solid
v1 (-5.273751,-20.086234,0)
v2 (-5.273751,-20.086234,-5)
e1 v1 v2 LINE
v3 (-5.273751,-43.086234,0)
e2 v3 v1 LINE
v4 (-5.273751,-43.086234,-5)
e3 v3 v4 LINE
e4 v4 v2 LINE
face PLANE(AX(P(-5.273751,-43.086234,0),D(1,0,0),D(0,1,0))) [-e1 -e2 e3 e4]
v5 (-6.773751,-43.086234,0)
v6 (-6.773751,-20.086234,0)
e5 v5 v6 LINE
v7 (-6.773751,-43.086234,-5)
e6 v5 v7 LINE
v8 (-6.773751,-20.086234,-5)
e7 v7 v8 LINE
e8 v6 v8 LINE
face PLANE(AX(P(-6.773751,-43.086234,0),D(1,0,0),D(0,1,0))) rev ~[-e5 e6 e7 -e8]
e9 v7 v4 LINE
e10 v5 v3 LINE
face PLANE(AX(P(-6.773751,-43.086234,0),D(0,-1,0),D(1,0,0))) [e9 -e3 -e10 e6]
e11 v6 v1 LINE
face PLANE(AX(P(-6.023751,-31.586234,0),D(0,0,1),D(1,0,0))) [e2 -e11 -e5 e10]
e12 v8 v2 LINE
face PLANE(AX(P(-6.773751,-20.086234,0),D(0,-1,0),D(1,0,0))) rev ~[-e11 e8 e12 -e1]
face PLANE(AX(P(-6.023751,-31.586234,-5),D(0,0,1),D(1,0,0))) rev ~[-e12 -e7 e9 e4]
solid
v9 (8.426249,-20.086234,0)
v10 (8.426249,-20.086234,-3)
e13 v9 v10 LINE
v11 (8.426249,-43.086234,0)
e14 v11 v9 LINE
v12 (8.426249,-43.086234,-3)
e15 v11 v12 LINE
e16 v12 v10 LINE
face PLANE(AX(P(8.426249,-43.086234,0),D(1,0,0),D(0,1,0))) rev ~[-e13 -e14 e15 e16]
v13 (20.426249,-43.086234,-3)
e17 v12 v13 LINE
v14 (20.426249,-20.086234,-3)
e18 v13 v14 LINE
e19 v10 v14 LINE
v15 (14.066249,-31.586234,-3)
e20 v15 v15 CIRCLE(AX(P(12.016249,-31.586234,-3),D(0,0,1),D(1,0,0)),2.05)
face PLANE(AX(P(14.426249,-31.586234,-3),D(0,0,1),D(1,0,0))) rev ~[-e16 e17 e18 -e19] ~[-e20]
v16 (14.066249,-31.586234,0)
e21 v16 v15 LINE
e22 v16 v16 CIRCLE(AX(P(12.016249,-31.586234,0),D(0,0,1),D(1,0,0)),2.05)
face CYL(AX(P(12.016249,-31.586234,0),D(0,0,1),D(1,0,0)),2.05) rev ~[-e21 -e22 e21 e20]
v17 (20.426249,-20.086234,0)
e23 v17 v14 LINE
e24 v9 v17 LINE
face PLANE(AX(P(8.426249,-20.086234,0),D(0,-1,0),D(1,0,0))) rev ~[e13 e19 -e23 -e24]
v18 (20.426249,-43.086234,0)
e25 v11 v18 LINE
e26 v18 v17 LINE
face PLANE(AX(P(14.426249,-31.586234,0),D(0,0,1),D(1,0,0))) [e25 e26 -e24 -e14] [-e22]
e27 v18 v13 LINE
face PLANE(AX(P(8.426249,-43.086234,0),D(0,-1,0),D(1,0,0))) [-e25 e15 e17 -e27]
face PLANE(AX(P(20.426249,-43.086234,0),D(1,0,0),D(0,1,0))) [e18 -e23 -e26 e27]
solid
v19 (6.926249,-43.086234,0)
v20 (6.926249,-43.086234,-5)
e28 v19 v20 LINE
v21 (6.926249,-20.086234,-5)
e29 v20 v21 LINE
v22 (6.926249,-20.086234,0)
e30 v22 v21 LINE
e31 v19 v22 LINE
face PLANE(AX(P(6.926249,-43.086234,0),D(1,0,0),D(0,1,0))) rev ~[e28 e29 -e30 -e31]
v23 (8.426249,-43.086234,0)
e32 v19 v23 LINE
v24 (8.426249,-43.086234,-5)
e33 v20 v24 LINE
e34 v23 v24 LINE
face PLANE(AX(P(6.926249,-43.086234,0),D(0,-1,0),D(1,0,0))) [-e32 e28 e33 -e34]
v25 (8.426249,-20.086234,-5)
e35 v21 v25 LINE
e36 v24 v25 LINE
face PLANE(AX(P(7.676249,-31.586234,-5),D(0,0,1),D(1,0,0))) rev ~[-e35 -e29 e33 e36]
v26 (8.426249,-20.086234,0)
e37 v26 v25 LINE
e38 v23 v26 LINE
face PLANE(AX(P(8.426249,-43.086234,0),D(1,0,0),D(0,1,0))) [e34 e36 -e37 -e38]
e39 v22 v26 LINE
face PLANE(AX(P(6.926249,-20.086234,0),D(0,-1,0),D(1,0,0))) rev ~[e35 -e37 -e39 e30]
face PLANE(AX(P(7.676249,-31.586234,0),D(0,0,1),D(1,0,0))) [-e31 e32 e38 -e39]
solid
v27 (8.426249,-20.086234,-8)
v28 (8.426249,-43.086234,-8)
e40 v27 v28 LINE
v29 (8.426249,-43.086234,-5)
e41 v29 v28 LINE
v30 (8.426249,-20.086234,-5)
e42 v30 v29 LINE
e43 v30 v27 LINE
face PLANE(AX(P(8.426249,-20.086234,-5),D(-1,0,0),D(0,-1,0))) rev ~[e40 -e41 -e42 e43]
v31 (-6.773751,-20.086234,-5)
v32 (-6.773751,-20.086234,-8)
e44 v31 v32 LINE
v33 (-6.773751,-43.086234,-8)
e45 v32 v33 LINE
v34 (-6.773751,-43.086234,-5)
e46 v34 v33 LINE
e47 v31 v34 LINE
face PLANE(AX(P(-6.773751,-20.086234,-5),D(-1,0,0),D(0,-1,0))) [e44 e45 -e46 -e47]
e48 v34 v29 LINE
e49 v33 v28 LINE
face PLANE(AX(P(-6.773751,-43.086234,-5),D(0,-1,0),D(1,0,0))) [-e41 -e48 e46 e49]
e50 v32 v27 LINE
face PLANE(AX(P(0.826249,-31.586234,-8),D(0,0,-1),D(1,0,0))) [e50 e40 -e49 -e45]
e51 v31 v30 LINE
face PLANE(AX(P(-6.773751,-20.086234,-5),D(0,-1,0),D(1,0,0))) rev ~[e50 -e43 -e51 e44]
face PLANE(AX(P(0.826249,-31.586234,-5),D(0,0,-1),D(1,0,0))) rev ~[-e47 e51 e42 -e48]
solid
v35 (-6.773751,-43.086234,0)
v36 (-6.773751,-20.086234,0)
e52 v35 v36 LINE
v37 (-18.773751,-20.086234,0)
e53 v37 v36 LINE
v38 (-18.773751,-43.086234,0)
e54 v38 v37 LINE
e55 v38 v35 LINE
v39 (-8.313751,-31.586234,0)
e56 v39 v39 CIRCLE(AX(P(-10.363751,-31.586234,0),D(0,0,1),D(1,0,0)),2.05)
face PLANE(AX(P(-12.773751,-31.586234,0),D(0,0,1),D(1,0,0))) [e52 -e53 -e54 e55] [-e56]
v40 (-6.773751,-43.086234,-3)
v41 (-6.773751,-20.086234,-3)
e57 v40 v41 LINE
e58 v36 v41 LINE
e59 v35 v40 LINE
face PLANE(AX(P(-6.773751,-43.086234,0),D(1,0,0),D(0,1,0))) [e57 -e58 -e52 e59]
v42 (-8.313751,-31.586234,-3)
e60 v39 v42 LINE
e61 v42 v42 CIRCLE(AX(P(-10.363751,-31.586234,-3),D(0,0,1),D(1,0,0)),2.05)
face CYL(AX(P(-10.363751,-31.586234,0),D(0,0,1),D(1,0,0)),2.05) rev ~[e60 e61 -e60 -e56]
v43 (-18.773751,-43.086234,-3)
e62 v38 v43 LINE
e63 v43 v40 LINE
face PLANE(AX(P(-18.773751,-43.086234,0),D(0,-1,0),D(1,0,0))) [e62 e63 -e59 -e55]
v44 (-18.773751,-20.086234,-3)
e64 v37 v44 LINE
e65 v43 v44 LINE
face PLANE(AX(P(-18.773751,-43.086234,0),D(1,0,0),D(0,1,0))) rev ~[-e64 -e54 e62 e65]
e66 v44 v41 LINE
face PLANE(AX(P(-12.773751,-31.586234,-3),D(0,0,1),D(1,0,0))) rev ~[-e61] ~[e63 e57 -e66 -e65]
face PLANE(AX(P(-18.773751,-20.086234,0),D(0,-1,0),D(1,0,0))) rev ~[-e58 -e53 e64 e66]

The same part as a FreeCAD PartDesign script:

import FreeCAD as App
import Part
import Sketcher

V = App.Vector
Q = App.Units.Quantity


def add_polygon(sketch, points):
    """Adds a closed chain of lines whose ends are joined by coincident constraints."""
    first, n = sketch.GeometryCount, len(points)
    for a, b in zip(points, points[1:] + points[:1]):
        sketch.addGeometry(Part.LineSegment(App.Vector(*a, 0), App.Vector(*b, 0)), False)
    for i in range(n):
        sketch.addConstraint(Sketcher.Constraint("Coincident", first + i, 2, first + (i + 1) % n, 1))

doc = App.newDocument("Part")
body = doc.addObject("PartDesign::Body", "Body")
body.AllowCompound = True

# Sketch on XY plane
sketch1 = doc.addObject("Sketcher::SketchObject", "Sketch")
body.addObject(sketch1)
sketch1.AttachmentSupport = (doc.XY_Plane, [""])
sketch1.MapMode = "FlatFace"
add_polygon(sketch1, [(-6.8, -20.1), (-6.8, -43.1), (-5.3, -43.1), (-5.3, -20.1)])  # lines 0-3
add_polygon(sketch1, [(6.9, -20.1), (6.9, -43.1), (8.4, -43.1), (8.4, -20.1)])  # lines 4-7
sketch1.addConstraint(Sketcher.Constraint("Vertical", 0))
sketch1.addConstraint(Sketcher.Constraint("Horizontal", 1))
sketch1.addConstraint(Sketcher.Constraint("Vertical", 2))
sketch1.addConstraint(Sketcher.Constraint("Horizontal", 3))
sketch1.addConstraint(Sketcher.Constraint("Vertical", 4))
sketch1.addConstraint(Sketcher.Constraint("Horizontal", 5))
sketch1.addConstraint(Sketcher.Constraint("Vertical", 6))
sketch1.addConstraint(Sketcher.Constraint("Horizontal", 7))
sketch1.addConstraint(Sketcher.Constraint("Horizontal", 1, 2, 4, 2))
sketch1.addConstraint(Sketcher.Constraint("Horizontal", 3, 2, 6, 2))
sketch1.addConstraint(Sketcher.Constraint("Equal", 3, 5))
sketch1.addConstraint(Sketcher.Constraint("DistanceY", 0, 2, 0, 1, Q("23 mm")))
sketch1.addConstraint(Sketcher.Constraint("DistanceX", 1, 1, 1, 2, Q("1.5 mm")))
sketch1.addConstraint(Sketcher.Constraint("DistanceX", 1, 2, 4, 2, Q("12.2 mm")))
sketch1.addConstraint(Sketcher.Constraint("DistanceX", 0, 2, -1, 1, Q("6.773751 mm")))
sketch1.addConstraint(Sketcher.Constraint("DistanceY", 0, 2, -1, 1, Q("43.086234 mm")))
pad1 = doc.addObject("PartDesign::Pad", "Pad")
body.addObject(pad1)
pad1.Profile = sketch1
pad1.Length = 5
pad1.Reversed = True
body2 = doc.addObject("PartDesign::Body", "Body001")
body2.AllowCompound = True

# Sketch on XY plane
sketch2 = doc.addObject("Sketcher::SketchObject", "Sketch001")
body2.addObject(sketch2)
sketch2.AttachmentSupport = (doc.getObject("XY_Plane001"), [""])
sketch2.MapMode = "FlatFace"
add_polygon(sketch2, [(-18.8, -20.1), (-18.8, -43.1), (-6.8, -43.1), (-6.8, -20.1)])  # lines 0-3
sketch2.addGeometry(Part.Circle(V(-10.4, -31.6, 0), V(0, 0, 1), 2), False)  # 4
add_polygon(sketch2, [(8.4, -20.1), (8.4, -43.1), (20.4, -43.1), (20.4, -20.1)])  # lines 5-8
sketch2.addGeometry(Part.Circle(V(12, -31.6, 0), V(0, 0, 1), 2), False)  # 9
sketch2.addConstraint(Sketcher.Constraint("Vertical", 0))
sketch2.addConstraint(Sketcher.Constraint("Horizontal", 1))
sketch2.addConstraint(Sketcher.Constraint("Vertical", 2))
sketch2.addConstraint(Sketcher.Constraint("Horizontal", 3))
sketch2.addConstraint(Sketcher.Constraint("Vertical", 5))
sketch2.addConstraint(Sketcher.Constraint("Horizontal", 6))
sketch2.addConstraint(Sketcher.Constraint("Vertical", 7))
sketch2.addConstraint(Sketcher.Constraint("Horizontal", 8))
sketch2.addConstraint(Sketcher.Constraint("Equal", 4, 9))
sketch2.addConstraint(Sketcher.Constraint("Horizontal", 4, 3, 9, 3))
sketch2.addConstraint(Sketcher.Constraint("Horizontal", 1, 2, 5, 2))
sketch2.addConstraint(Sketcher.Constraint("Horizontal", 3, 2, 7, 2))
sketch2.addConstraint(Sketcher.Constraint("Equal", 3, 6))
sketch2.addConstraint(Sketcher.Constraint("Diameter", 4, Q("4.1 mm")))
sketch2.addConstraint(Sketcher.Constraint("DistanceX", 1, 1, 1, 2, Q("12 mm")))
sketch2.addConstraint(Sketcher.Constraint("DistanceY", 0, 2, 0, 1, Q("23 mm")))
sketch2.addConstraint(Sketcher.Constraint("DistanceY", 0, 2, 4, 3, Q("11.5 mm")))
sketch2.addConstraint(Sketcher.Constraint("DistanceX", 1, 2, 5, 2, Q("15.2 mm")))
sketch2.addConstraint(Sketcher.Constraint("DistanceX", 4, 3, 9, 3, Q("22.38 mm")))
sketch2.addConstraint(Sketcher.Constraint("DistanceX", 0, 2, 4, 3, Q("8.41 mm")))
sketch2.addConstraint(Sketcher.Constraint("DistanceX", 4, 3, -1, 1, Q("10.363751 mm")))
sketch2.addConstraint(Sketcher.Constraint("DistanceY", 4, 3, -1, 1, Q("31.586234 mm")))
pad2 = doc.addObject("PartDesign::Pad", "Pad001")
body2.addObject(pad2)
pad2.Profile = sketch2
pad2.Length = 3
pad2.Reversed = True
body3 = doc.addObject("PartDesign::Body", "Body002")

# Sketch on XY plane
sketch3 = doc.addObject("Sketcher::SketchObject", "Sketch002")
body3.addObject(sketch3)
sketch3.AttachmentSupport = (doc.getObject("XY_Plane002"), [""])
sketch3.MapMode = "FlatFace"
sketch3.AttachmentOffset = App.Placement(V(0, 0, -5), App.Rotation())
add_polygon(sketch3, [(-7, -43), (-7, -20), (8, -20), (8, -43)])  # lines 0-3
sketch3.addConstraint(Sketcher.Constraint("Vertical", 0))
sketch3.addConstraint(Sketcher.Constraint("Horizontal", 1))
sketch3.addConstraint(Sketcher.Constraint("Vertical", 2))
sketch3.addConstraint(Sketcher.Constraint("Horizontal", 3))
sketch3.addConstraint(Sketcher.Constraint("DistanceY", 0, 1, 0, 2, Q("23 mm")))
sketch3.addConstraint(Sketcher.Constraint("DistanceX", 1, 1, 1, 2, Q("15.2 mm")))
sketch3.addConstraint(Sketcher.Constraint("DistanceX", 0, 2, -1, 1, Q("6.773751 mm")))
sketch3.addConstraint(Sketcher.Constraint("DistanceY", 0, 2, -1, 1, Q("20.086234 mm")))
pad3 = doc.addObject("PartDesign::Pad", "Pad002")
body3.addObject(pad3)
pad3.Profile = sketch3
pad3.Length = 3
pad3.Reversed = True

doc.recompute()
